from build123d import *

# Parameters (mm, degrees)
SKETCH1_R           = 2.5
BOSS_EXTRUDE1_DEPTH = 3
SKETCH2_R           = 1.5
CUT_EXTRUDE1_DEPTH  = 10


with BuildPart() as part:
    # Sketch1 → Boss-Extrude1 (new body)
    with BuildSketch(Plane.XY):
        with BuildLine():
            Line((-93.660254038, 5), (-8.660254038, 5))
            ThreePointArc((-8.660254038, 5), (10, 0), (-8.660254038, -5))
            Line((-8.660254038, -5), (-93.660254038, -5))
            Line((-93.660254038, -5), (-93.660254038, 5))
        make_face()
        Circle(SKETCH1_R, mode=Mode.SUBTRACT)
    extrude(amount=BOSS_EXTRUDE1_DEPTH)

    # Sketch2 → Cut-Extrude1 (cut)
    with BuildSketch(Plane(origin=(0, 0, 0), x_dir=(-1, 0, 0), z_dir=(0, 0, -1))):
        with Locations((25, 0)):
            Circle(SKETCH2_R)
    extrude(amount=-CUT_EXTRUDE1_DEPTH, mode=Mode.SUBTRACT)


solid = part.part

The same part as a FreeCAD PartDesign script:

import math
import FreeCAD as App
import Part
import Sketcher
from FreeCAD import Vector
Q = App.Units.Quantity

doc = App.newDocument("Part")
body = doc.addObject("PartDesign::Body", "Body")

# Sketch on XY plane
sketch1 = body.newObject("Sketcher::SketchObject", "Sketch")
sketch1.AttachmentSupport = (doc.getObject("XY_Plane"), [""])
sketch1.MapMode = "FlatFace"
sketch1.addGeometry([
    Part.LineSegment(Vector(-8.7, 5, 0), Vector(-93.7, 5, 0)),  # 0
    Part.LineSegment(Vector(-93.7, 5, 0), Vector(-93.7, -5, 0)),  # 1
    Part.LineSegment(Vector(-93.7, -5, 0), Vector(-8.7, -5, 0)),  # 2
    Part.ArcOfCircle(Part.Circle(Vector(0, 0, 0), Vector(0, 0, 1), 10), math.radians(-150), math.radians(150)),  # 3
    Part.Circle(Vector(0, 0, 0), Vector(0, 0, 1), 2.5),  # 4
], False)
sketch1.addConstraint([
    Sketcher.Constraint("Coincident", 0, 2, 1, 1),
    Sketcher.Constraint("Coincident", 1, 2, 2, 1),
    Sketcher.Constraint("Coincident", 2, 2, 3, 1),
    Sketcher.Constraint("Coincident", 3, 2, 0, 1),
    Sketcher.Constraint("Horizontal", 0),
    Sketcher.Constraint("Vertical", 1),
    Sketcher.Constraint("Horizontal", 2),
    Sketcher.Constraint("Coincident", 3, 3, -1, 1),
    Sketcher.Constraint("Coincident", 4, 3, -1, 1),
    Sketcher.Constraint("Vertical", 2, 2, 3, 2),
    Sketcher.Constraint("Diameter", 4, Q("5 mm")),
    Sketcher.Constraint("Radius", 3, Q("10 mm")),
    Sketcher.Constraint("DistanceX", 0, 2, 0, 1, Q("85 mm")),
    Sketcher.Constraint("DistanceY", 1, 2, 1, 1, Q("10 mm")),
])
pad1 = body.newObject("PartDesign::Pad", "Pad")
pad1.Profile = sketch1
pad1.Length = 3

# Sketch on XY plane
sketch2 = body.newObject("Sketcher::SketchObject", "Sketch001")
sketch2.AttachmentSupport = (doc.getObject("XY_Plane"), [""])
sketch2.MapMode = "FlatFace"
sketch2.addGeometry(Part.Circle(Vector(-25, 0, 0), Vector(0, 0, 1), 1.5), False)
sketch2.addConstraint([
    Sketcher.Constraint("PointOnObject", 0, 3, -1),
    Sketcher.Constraint("Diameter", 0, Q("3 mm")),
    Sketcher.Constraint("DistanceX", 0, 3, -1, 1, Q("25 mm")),
])
pocket1 = body.newObject("PartDesign::Pocket", "Pocket")
pocket1.Profile = sketch2
pocket1.Length = 10
pocket1.Reversed = True

doc.recompute()
